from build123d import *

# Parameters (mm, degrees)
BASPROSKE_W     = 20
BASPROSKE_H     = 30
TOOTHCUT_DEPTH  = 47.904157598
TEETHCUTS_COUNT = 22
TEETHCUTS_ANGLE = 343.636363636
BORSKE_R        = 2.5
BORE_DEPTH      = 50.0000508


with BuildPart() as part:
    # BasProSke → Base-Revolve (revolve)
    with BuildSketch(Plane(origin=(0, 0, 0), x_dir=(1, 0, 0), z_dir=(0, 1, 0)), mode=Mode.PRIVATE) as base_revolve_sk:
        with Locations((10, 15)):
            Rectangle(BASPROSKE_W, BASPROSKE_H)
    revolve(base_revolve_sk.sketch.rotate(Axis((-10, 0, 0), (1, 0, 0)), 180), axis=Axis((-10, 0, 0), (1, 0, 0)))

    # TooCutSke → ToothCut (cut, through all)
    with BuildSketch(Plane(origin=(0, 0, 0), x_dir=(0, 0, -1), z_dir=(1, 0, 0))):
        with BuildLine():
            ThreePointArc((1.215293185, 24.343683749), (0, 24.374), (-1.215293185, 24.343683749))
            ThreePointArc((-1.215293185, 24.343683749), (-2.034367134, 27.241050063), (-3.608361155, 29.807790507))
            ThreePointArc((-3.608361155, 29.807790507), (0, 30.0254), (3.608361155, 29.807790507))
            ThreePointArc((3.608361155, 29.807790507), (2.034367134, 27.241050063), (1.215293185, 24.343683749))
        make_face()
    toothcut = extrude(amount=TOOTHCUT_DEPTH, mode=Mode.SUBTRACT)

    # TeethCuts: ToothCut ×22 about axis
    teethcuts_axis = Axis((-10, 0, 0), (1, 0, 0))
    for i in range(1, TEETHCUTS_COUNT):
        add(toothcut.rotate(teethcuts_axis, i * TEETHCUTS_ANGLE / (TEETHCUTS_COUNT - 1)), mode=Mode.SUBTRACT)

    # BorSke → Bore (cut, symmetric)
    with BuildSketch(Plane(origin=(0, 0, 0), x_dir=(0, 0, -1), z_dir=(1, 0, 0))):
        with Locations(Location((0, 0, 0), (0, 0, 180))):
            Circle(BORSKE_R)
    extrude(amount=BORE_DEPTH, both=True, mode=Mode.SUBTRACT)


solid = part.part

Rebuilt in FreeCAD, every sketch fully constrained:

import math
import FreeCAD as App
import Part
import Sketcher
Q = App.Units.Quantity

doc = App.newDocument("Part")
params = doc.addObject("Spreadsheet::Sheet", "Params")
for row, (alias, value) in enumerate([
    ("sketch1_width", "20 mm"),
    ("sketch1_height", "30 mm"),
    ("revolution_angle", "360 deg"),
    ("sketch2_radius", "11 mm"),
    ("sketch3_diameter", "5 mm"),
    ("pocket2_length", "100.000102 mm"),
], start=1):
    params.set(f"A{row}", alias)
    params.set(f"B{row}", "=" + value)
    params.setAlias(f"B{row}", alias)

body = doc.addObject("PartDesign::Body", "Body")

# Sketch on XZ plane
sketch1 = doc.addObject("Sketcher::SketchObject", "Sketch")
body.addObject(sketch1)
sketch1.AttachmentSupport = (doc.XZ_Plane, [""])
sketch1.MapMode = "FlatFace"
sketch1.addGeometry([
    Part.LineSegment(App.Vector(0, -30, 0), App.Vector(0, 0, 0)),
    Part.LineSegment(App.Vector(0, 0, 0), App.Vector(20, 0, 0)),
    Part.LineSegment(App.Vector(20, 0, 0), App.Vector(20, -30, 0)),
    Part.LineSegment(App.Vector(20, -30, 0), App.Vector(0, -30, 0)),
], False)
sketch1.addConstraint([
    Sketcher.Constraint("Coincident", 0, 2, 1, 1),
    Sketcher.Constraint("Coincident", 1, 2, 2, 1),
    Sketcher.Constraint("Coincident", 2, 2, 3, 1),
    Sketcher.Constraint("Coincident", 3, 2, 0, 1),
    Sketcher.Constraint("Vertical", 0),
    Sketcher.Constraint("Horizontal", 1),
    Sketcher.Constraint("Vertical", 2),
    Sketcher.Constraint("Horizontal", 3),
    Sketcher.Constraint("Coincident", 0, 2, -1, 1),
    Sketcher.Constraint("DistanceX", 1, 1, 1, 2, Q("20 mm")),
    Sketcher.Constraint("DistanceY", 0, 1, 0, 2, Q("30 mm")),
])
sketch1.setExpression("Constraints[9]", "Params.sketch1_width")
sketch1.setExpression("Constraints[10]", "Params.sketch1_height")
revolution = doc.addObject("PartDesign::Revolution", "Revolution")
body.addObject(revolution)
revolution.Profile = sketch1
revolution.ReferenceAxis = (sketch1, ["H_Axis"])
revolution.setExpression("Angle", "Params.revolution_angle")

# Sketch on YZ plane
sketch2 = doc.addObject("Sketcher::SketchObject", "Sketch001")
body.addObject(sketch2)
sketch2.AttachmentSupport = (doc.YZ_Plane, [""])
sketch2.MapMode = "FlatFace"
sketch2.addGeometry([
    Part.ArcOfCircle(Part.Circle(App.Vector(0, 0, 0), App.Vector(0, 0, 1), 24.4), math.radians(-2.86), math.radians(2.86)),
    Part.ArcOfCircle(Part.Circle(App.Vector(22.8, -12.1, 0), App.Vector(0, 0, 1), 11), math.radians(51), math.radians(82)),
    Part.ArcOfCircle(Part.Circle(App.Vector(0, 0, 0), App.Vector(0, 0, 1), 30), math.radians(-6.9), math.radians(6.9)),
    Part.ArcOfCircle(Part.Circle(App.Vector(22.8, 12.1, 0), App.Vector(0, 0, 1), 11), math.radians(-82), math.radians(-51)),
], False)
sketch2.addConstraint([
    Sketcher.Constraint("Coincident", 0, 1, 1, 2),
    Sketcher.Constraint("Coincident", 1, 1, 2, 1),
    Sketcher.Constraint("Coincident", 2, 2, 3, 2),
    Sketcher.Constraint("Coincident", 3, 1, 0, 2),
    Sketcher.Constraint("Coincident", 0, 3, -1, 1),
    Sketcher.Constraint("Coincident", 2, 3, -1, 1),
    Sketcher.Constraint("Equal", 1, 3),
    Sketcher.Constraint("Symmetric", 1, 3, 3, 3, -1),
    Sketcher.Constraint("Radius", 1, Q("11 mm")),
    Sketcher.Constraint("Radius", 0, Q("24.374 mm")),
    Sketcher.Constraint("Radius", 2, Q("30.0254 mm")),
    Sketcher.Constraint("DistanceX", -1, 1, 1, 3, Q("22.828141 mm")),
    Sketcher.Constraint("DistanceY", 1, 3, -1, 1, Q("12.11039 mm")),
])
sketch2.setExpression("Constraints[8]", "Params.sketch2_radius")
pocket1 = doc.addObject("PartDesign::Pocket", "Pocket")
body.addObject(pocket1)
pocket1.Profile = sketch2
pocket1.Type = "ThroughAll"
pocket1.Reversed = True
doc.recompute()

polarpattern = doc.addObject("PartDesign::PolarPattern", "PolarPattern")
body.addObject(polarpattern)
polarpattern.Originals = [pocket1]
polarpattern.Axis = (doc.X_Axis, [""])
polarpattern.Angle = 360
polarpattern.Occurrences = 22
body.Tip = polarpattern

# Sketch on YZ plane
sketch3 = doc.addObject("Sketcher::SketchObject", "Sketch002")
body.addObject(sketch3)
sketch3.AttachmentSupport = (doc.YZ_Plane, [""])
sketch3.MapMode = "FlatFace"
sketch3.addGeometry(Part.Circle(App.Vector(0, 0, 0), App.Vector(0, 0, 1), 2.5), False)
sketch3.addConstraint([
    Sketcher.Constraint("Coincident", 0, 3, -1, 1),
    Sketcher.Constraint("Diameter", 0, Q("5 mm")),
])
sketch3.setExpression("Constraints[1]", "Params.sketch3_diameter")
pocket2 = doc.addObject("PartDesign::Pocket", "Pocket001")
body.addObject(pocket2)
pocket2.Profile = sketch3
pocket2.setExpression("Length", "Params.pocket2_length")
pocket2.Midplane = True

doc.recompute()
